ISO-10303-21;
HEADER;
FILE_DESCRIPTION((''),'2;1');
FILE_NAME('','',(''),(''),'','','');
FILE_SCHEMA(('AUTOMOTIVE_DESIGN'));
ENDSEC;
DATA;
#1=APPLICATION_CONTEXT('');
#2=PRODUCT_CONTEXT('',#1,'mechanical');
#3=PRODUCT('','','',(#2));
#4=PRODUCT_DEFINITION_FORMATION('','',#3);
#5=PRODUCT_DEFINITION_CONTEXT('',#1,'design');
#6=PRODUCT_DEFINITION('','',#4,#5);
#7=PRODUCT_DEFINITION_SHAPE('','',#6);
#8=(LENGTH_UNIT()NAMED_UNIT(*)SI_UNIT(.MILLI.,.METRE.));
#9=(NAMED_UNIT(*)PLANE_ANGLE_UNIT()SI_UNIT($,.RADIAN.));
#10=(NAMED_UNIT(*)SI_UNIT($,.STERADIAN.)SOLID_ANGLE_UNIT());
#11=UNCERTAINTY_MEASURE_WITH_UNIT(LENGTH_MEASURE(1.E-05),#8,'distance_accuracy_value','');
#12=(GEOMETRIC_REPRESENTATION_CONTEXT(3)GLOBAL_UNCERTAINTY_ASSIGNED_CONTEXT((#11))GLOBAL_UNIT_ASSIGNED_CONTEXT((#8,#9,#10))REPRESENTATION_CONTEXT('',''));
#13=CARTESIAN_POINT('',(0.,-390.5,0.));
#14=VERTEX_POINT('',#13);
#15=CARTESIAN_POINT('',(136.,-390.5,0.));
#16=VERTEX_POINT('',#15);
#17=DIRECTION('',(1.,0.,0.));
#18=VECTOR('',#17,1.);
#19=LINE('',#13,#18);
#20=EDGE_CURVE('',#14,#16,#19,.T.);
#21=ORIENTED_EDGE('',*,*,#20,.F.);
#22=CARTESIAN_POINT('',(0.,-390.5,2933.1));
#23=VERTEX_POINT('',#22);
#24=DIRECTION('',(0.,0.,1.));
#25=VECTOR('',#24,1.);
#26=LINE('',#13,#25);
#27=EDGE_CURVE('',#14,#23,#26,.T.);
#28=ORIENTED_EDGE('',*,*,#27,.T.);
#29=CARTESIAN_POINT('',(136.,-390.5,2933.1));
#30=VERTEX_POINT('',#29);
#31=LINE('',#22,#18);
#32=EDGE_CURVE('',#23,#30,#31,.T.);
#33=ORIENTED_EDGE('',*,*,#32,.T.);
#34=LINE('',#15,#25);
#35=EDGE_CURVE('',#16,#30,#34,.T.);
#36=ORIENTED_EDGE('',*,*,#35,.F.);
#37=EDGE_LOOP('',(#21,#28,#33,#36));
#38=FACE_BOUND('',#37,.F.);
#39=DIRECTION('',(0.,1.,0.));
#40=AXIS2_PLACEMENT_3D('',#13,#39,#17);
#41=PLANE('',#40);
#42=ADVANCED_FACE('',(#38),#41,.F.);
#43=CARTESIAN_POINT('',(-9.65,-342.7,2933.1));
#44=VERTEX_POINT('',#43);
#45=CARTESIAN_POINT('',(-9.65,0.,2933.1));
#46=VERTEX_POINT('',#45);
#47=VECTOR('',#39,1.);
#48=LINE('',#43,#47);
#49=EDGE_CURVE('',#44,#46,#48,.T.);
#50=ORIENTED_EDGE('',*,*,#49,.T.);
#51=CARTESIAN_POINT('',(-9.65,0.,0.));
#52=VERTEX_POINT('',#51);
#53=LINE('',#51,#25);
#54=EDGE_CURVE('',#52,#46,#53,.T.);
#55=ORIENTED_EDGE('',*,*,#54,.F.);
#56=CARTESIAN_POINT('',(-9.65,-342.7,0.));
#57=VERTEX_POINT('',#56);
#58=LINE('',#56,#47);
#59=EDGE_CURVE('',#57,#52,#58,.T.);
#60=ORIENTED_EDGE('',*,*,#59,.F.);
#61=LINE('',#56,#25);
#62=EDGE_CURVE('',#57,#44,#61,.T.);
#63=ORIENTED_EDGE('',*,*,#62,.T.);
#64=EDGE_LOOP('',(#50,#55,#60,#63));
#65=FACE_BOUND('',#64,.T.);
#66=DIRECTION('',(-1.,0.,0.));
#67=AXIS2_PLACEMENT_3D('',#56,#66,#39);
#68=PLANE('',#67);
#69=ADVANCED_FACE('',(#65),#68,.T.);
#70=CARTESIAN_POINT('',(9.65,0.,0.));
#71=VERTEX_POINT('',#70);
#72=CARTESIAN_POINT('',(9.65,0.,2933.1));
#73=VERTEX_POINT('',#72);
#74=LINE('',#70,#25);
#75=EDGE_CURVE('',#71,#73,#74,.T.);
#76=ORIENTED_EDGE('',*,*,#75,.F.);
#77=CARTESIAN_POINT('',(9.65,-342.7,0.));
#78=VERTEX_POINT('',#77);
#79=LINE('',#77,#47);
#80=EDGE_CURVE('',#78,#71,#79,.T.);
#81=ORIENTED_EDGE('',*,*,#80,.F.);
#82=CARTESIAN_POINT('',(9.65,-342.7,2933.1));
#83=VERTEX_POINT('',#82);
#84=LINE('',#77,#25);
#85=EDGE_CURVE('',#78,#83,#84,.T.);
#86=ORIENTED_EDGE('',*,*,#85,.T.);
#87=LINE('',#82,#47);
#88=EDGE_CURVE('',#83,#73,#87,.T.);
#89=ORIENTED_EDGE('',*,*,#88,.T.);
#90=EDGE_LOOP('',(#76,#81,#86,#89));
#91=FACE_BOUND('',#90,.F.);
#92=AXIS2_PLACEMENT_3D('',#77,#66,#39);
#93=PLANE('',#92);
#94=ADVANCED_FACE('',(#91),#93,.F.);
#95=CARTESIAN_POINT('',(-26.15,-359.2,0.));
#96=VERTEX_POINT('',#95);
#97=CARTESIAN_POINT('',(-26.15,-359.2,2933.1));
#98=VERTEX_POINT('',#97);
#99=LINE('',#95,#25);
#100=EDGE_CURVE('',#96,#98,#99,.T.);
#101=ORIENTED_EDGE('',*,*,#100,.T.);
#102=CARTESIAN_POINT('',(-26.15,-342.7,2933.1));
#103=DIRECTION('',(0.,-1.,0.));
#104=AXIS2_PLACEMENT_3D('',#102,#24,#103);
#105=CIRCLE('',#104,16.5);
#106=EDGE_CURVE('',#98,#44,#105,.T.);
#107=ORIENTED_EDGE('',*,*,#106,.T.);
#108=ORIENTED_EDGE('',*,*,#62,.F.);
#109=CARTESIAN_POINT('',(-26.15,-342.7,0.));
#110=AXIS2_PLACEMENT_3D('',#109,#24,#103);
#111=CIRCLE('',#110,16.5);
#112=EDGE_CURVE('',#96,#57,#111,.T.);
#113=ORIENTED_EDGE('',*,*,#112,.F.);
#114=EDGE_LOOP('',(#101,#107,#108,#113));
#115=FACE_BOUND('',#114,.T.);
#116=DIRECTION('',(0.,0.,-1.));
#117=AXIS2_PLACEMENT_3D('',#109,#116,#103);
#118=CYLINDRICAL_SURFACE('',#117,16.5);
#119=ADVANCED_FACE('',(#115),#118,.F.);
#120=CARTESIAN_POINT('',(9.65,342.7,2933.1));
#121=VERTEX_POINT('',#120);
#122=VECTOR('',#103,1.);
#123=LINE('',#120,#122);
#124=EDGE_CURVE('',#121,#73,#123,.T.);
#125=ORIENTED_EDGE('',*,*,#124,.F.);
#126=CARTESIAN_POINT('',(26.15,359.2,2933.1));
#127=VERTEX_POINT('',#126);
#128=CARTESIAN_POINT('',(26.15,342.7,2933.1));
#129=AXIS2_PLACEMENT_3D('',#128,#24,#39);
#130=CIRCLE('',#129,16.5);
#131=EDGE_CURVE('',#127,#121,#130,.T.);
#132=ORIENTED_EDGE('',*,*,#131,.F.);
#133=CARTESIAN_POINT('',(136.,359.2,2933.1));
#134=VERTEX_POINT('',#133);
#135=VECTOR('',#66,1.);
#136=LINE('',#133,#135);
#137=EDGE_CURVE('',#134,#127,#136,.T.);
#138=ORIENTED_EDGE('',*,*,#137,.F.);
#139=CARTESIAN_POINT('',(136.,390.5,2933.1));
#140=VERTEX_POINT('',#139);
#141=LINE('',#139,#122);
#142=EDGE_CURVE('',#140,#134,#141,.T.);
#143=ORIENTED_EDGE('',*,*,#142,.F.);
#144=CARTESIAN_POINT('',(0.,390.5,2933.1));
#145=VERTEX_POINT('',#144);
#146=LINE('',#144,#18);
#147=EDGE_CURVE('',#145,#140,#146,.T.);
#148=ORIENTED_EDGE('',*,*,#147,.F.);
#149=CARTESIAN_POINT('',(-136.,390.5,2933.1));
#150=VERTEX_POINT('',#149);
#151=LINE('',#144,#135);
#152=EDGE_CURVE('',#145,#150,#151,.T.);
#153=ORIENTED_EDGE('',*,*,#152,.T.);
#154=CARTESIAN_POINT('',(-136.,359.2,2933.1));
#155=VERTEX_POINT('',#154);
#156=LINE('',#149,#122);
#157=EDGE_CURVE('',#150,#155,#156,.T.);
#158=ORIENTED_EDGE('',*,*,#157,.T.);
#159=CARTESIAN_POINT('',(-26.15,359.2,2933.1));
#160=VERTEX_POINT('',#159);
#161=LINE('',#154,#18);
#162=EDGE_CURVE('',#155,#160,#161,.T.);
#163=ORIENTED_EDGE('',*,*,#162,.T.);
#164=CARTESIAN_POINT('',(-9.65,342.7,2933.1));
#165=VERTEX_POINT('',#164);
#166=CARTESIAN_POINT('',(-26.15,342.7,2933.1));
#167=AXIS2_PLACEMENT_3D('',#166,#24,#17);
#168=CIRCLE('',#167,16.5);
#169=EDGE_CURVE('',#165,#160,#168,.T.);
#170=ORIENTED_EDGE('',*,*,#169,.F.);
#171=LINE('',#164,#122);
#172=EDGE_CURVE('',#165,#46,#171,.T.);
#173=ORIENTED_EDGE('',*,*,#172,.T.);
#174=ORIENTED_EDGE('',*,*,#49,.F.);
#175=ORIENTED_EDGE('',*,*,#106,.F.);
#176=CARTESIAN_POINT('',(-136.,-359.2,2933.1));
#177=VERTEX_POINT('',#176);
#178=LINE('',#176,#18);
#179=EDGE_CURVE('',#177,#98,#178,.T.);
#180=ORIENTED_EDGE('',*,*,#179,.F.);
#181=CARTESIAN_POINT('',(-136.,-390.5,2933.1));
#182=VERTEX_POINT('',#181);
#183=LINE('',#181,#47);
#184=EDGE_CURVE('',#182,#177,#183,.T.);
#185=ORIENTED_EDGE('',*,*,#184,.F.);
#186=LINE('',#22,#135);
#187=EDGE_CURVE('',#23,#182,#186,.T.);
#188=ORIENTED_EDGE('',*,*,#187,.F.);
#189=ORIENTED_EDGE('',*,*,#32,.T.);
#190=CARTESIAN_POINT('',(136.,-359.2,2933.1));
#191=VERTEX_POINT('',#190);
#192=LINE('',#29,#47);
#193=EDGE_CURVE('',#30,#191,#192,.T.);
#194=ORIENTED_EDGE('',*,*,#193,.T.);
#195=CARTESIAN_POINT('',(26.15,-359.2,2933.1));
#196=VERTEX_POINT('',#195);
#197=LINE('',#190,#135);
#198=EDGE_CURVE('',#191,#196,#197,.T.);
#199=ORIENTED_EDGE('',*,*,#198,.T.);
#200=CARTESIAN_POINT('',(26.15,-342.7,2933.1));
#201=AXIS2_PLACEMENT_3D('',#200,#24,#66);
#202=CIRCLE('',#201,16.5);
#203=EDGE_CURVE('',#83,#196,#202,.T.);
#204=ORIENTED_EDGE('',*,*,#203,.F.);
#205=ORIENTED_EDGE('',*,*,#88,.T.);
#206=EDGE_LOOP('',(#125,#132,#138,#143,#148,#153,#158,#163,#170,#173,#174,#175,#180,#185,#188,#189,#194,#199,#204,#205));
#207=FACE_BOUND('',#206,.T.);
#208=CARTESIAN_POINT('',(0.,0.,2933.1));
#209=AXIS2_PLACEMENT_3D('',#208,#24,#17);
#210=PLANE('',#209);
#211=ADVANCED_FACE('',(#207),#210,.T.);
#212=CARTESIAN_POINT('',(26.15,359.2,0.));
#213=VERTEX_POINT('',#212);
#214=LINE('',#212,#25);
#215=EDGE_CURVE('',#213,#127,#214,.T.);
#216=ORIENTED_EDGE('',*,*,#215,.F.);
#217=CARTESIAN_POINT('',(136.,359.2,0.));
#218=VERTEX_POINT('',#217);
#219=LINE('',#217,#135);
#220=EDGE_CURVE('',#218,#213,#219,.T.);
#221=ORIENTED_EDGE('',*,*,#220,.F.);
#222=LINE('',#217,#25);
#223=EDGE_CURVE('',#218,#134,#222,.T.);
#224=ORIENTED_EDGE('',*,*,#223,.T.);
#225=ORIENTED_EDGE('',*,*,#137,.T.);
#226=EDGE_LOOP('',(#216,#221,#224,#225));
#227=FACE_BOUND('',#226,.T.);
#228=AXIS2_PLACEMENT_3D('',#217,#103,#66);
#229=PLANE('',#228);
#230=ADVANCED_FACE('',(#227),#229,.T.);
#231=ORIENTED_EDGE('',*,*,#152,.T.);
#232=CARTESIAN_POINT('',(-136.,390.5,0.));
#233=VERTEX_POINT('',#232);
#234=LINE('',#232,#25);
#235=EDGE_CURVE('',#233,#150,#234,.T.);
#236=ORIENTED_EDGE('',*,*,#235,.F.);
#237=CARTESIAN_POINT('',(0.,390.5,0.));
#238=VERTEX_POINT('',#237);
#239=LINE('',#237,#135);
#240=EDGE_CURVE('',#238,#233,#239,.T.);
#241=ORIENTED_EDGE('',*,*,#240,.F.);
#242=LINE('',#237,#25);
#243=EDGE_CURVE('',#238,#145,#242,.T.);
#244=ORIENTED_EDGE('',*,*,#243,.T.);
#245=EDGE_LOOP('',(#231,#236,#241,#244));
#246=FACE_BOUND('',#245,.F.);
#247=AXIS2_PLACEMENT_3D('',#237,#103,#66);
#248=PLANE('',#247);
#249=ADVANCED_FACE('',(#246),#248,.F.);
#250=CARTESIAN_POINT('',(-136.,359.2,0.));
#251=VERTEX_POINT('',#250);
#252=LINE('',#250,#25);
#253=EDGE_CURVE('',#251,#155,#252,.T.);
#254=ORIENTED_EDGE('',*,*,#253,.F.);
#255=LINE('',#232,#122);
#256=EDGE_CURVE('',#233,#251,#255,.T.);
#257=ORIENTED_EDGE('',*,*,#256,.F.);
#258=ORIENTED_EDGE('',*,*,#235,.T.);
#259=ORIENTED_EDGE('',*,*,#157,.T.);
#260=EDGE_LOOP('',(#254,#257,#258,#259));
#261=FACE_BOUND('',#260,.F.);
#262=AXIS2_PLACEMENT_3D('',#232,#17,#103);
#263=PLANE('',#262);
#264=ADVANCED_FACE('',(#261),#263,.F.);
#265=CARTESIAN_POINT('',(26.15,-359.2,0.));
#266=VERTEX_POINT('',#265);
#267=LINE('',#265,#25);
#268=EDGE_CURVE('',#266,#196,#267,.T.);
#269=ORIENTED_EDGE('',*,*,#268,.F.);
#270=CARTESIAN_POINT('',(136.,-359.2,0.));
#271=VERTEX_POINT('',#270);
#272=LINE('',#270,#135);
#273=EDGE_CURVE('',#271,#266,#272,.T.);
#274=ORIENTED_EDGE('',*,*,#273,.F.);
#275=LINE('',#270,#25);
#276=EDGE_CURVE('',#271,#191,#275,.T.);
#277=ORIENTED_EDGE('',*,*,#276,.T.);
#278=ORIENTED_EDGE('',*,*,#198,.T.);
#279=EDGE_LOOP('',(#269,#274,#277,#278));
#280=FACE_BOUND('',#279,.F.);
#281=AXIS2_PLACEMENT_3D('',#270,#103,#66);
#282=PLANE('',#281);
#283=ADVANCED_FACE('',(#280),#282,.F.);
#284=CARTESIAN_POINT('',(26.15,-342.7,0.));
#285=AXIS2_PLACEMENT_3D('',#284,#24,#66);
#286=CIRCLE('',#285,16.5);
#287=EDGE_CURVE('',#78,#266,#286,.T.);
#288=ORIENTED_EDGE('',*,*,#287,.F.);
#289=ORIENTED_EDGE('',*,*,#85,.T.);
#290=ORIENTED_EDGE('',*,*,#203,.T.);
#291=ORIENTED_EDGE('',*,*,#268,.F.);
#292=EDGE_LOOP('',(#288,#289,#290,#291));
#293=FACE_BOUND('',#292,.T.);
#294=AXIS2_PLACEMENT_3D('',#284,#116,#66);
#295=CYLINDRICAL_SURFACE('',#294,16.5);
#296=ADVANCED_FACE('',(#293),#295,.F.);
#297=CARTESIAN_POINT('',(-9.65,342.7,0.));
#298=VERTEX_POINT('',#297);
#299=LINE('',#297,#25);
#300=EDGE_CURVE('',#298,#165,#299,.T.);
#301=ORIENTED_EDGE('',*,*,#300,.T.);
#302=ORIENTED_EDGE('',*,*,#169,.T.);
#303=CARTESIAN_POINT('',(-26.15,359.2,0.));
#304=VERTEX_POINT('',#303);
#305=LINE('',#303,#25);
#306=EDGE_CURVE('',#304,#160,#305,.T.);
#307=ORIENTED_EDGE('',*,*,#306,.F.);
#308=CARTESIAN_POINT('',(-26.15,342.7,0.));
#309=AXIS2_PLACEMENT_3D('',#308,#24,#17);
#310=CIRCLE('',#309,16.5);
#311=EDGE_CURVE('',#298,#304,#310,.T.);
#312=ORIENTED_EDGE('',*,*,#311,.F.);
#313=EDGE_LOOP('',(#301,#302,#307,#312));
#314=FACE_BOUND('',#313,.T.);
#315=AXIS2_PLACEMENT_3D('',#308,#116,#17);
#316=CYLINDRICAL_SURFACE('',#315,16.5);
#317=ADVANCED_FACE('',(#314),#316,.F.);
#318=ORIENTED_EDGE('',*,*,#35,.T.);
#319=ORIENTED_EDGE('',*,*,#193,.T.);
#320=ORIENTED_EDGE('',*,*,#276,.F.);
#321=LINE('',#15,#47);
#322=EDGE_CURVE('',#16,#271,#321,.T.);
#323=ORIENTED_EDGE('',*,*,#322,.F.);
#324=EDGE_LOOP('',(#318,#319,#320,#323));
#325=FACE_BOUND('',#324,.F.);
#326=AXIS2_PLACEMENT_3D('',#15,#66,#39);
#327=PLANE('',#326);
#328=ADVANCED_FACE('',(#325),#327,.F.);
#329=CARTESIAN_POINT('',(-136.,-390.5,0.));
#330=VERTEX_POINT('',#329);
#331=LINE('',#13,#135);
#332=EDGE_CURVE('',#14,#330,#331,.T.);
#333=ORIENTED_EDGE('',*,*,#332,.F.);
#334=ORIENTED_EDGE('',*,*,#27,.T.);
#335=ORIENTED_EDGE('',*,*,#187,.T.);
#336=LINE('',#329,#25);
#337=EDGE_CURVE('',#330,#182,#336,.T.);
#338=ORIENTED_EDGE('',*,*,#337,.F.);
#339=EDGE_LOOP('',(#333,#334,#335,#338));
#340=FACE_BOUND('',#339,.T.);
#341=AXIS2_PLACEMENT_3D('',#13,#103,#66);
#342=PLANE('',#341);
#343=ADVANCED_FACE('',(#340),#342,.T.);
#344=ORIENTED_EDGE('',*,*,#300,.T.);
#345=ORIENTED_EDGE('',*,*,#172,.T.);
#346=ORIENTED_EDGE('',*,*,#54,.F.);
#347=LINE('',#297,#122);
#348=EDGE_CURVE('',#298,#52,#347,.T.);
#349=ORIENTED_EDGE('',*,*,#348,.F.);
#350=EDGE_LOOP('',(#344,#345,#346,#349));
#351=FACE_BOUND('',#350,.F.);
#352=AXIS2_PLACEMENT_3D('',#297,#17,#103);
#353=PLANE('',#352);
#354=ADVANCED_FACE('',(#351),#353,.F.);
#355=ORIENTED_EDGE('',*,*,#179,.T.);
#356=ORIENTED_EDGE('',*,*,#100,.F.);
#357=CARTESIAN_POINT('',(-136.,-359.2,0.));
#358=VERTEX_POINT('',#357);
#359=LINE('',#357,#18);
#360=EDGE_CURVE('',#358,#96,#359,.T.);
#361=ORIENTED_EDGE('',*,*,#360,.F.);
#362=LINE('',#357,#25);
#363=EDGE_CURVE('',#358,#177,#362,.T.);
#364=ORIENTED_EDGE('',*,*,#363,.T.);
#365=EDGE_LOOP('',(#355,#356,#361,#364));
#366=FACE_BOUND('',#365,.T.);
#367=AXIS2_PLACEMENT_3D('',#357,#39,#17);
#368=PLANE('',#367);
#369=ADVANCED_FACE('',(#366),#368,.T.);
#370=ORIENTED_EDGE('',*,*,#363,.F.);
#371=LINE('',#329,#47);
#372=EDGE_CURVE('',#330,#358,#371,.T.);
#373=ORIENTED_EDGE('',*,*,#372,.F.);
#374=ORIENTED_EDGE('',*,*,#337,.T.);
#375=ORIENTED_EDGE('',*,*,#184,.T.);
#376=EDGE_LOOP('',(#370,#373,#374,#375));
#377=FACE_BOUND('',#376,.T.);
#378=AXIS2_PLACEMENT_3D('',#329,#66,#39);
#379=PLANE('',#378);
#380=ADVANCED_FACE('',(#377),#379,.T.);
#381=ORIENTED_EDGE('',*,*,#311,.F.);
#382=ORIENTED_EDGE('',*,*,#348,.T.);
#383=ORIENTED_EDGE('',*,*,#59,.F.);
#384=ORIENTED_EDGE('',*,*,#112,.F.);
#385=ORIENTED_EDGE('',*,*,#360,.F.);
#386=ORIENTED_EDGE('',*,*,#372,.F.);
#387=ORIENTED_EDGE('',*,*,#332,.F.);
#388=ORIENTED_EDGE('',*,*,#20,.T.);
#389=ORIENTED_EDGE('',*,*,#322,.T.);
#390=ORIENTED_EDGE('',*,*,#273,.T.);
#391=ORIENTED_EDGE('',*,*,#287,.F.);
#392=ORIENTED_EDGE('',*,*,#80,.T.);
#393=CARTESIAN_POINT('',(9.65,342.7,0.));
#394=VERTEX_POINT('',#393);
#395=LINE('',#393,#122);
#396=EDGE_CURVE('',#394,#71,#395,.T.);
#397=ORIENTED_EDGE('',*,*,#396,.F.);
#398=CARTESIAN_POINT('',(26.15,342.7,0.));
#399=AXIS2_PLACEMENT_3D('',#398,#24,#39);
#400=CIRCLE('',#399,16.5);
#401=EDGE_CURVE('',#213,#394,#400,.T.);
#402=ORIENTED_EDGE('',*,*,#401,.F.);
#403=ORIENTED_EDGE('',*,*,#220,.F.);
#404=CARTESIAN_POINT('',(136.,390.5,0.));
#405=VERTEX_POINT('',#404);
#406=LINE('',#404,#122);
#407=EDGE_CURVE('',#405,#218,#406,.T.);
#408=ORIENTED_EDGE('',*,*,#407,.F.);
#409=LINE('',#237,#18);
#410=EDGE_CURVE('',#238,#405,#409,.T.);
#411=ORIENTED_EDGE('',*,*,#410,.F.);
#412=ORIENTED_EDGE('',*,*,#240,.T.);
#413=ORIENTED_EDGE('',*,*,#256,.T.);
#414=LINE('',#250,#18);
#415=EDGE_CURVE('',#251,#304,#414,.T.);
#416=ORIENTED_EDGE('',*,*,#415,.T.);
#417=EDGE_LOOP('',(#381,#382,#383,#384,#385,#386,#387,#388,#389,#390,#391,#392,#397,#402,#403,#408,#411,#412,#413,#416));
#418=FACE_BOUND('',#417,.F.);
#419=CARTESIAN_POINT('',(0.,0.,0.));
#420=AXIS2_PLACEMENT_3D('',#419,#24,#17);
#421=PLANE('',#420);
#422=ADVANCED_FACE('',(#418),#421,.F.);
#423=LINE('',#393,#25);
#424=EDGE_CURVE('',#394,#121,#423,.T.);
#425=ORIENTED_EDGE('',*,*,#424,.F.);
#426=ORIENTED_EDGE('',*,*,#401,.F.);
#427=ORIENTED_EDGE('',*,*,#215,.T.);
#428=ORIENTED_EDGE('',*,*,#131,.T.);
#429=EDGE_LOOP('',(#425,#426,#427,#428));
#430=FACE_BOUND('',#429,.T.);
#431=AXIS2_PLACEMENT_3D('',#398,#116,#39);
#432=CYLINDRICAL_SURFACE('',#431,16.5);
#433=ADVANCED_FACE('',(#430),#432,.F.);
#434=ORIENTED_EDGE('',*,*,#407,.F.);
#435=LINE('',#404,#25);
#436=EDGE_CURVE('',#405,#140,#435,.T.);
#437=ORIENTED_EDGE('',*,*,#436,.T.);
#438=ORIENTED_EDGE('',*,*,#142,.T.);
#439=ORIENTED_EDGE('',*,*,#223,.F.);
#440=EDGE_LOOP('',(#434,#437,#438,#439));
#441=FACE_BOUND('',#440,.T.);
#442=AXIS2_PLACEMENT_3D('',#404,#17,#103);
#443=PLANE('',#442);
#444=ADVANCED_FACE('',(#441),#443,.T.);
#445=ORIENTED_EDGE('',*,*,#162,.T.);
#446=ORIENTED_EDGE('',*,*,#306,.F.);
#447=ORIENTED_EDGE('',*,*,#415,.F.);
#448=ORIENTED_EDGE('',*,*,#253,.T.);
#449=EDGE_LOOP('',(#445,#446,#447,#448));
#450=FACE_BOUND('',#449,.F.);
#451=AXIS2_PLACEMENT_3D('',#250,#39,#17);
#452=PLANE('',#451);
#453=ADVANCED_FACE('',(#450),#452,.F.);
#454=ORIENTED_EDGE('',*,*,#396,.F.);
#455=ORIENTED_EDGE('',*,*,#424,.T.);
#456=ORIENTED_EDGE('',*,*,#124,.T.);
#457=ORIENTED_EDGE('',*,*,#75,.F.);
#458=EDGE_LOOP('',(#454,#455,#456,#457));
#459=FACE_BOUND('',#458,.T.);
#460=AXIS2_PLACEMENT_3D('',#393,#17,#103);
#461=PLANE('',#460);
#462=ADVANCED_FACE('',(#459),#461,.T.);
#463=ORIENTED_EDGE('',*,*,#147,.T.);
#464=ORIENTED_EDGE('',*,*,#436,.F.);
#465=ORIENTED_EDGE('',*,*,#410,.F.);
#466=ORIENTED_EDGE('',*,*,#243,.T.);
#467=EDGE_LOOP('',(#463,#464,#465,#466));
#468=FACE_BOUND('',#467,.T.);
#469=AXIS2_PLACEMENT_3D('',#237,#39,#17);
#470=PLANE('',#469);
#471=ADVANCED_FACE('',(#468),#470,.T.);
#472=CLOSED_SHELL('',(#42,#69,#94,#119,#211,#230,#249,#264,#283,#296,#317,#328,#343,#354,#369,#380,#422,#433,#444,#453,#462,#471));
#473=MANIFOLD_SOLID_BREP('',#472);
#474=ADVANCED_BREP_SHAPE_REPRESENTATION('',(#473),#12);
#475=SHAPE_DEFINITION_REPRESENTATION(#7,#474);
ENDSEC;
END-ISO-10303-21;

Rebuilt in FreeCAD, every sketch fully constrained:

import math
import FreeCAD as App
import Part
import Sketcher

V = App.Vector

doc = App.newDocument("Part")
params = doc.addObject("Spreadsheet::Sheet", "Params")
for row, (alias, value) in enumerate([
    ("sketch1_radius", "16.5 mm"),
    ("sketch1_height", "31.3 mm"),
    ("pad1_length", "2933.1 mm"),
], start=1):
    params.set(f"A{row}", alias)
    params.set(f"B{row}", "=" + value)
    params.setAlias(f"B{row}", alias)

body = doc.addObject("PartDesign::Body", "Body")

# Sketch on XY plane
sketch1 = body.newObject("Sketcher::SketchObject", "Sketch")
sketch1.AttachmentSupport = (doc.getObject("XY_Plane"), [""])
sketch1.MapMode = "FlatFace"
sketch1.addGeometry([
    Part.LineSegment(V(-136, -359.2, 0), V(-136, -390.5, 0)),  # 0
    Part.LineSegment(V(-136, -390.5, 0), V(136, -390.5, 0)),  # 1
    Part.LineSegment(V(136, -390.5, 0), V(136, -359.2, 0)),  # 2
    Part.LineSegment(V(136, -359.2, 0), V(26.15, -359.2, 0)),  # 3
    Part.ArcOfCircle(Part.Circle(V(26.15, -342.7, 0), V(0, 0, 1), 16.5), math.radians(180), math.radians(270)),  # 4
    Part.LineSegment(V(9.65, -342.7, 0), V(9.65, 342.7, 0)),  # 5
    Part.ArcOfCircle(Part.Circle(V(26.15, 342.7, 0), V(0, 0, 1), 16.5), math.radians(90), math.radians(180)),  # 6
    Part.LineSegment(V(26.15, 359.2, 0), V(136, 359.2, 0)),  # 7
    Part.LineSegment(V(136, 359.2, 0), V(136, 390.5, 0)),  # 8
    Part.LineSegment(V(136, 390.5, 0), V(-136, 390.5, 0)),  # 9
    Part.LineSegment(V(-136, 390.5, 0), V(-136, 359.2, 0)),  # 10
    Part.LineSegment(V(-136, 359.2, 0), V(-26.15, 359.2, 0)),  # 11
    Part.ArcOfCircle(Part.Circle(V(-26.15, 342.7, 0), V(0, 0, 1), 16.5), math.radians(0), math.radians(90)),  # 12
    Part.LineSegment(V(-9.65, 342.7, 0), V(-9.65, -342.7, 0)),  # 13
    Part.ArcOfCircle(Part.Circle(V(-26.15, -342.7, 0), V(0, 0, 1), 16.5), math.radians(-90), math.radians(0)),  # 14
    Part.LineSegment(V(-26.15, -359.2, 0), V(-136, -359.2, 0)),  # 15
], False)
sketch1.addConstraint([
    Sketcher.Constraint("Coincident", 0, 2, 1, 1),
    Sketcher.Constraint("Coincident", 1, 2, 2, 1),
    Sketcher.Constraint("Coincident", 2, 2, 3, 1),
    Sketcher.Constraint("Tangent", 3, 2, 4, 2),
    Sketcher.Constraint("Tangent", 4, 1, 5, 1),
    Sketcher.Constraint("Tangent", 5, 2, 6, 2),
    Sketcher.Constraint("Tangent", 6, 1, 7, 1),
    Sketcher.Constraint("Coincident", 7, 2, 8, 1),
    Sketcher.Constraint("Coincident", 8, 2, 9, 1),
    Sketcher.Constraint("Coincident", 9, 2, 10, 1),
    Sketcher.Constraint("Coincident", 10, 2, 11, 1),
    Sketcher.Constraint("Tangent", 11, 2, 12, 2),
    Sketcher.Constraint("Tangent", 12, 1, 13, 1),
    Sketcher.Constraint("Tangent", 13, 2, 14, 2),
    Sketcher.Constraint("Tangent", 14, 1, 15, 1),
    Sketcher.Constraint("Coincident", 15, 2, 0, 1),
    Sketcher.Constraint("Vertical", 0),
    Sketcher.Constraint("Horizontal", 1),
    Sketcher.Constraint("Vertical", 2),
    Sketcher.Constraint("Horizontal", 3),
    Sketcher.Constraint("Vertical", 5),
    Sketcher.Constraint("Horizontal", 7),
    Sketcher.Constraint("Vertical", 8),
    Sketcher.Constraint("Horizontal", 9),
    Sketcher.Constraint("Vertical", 10),
    Sketcher.Constraint("Horizontal", 11),
    Sketcher.Constraint("Vertical", 13),
    Sketcher.Constraint("Horizontal", 15),
    Sketcher.Constraint("Equal", 4, 6),
    Sketcher.Constraint("Equal", 6, 12),
    Sketcher.Constraint("Equal", 12, 14),
    Sketcher.Constraint("Symmetric", 4, 3, 12, 3, -1, 1),
    Sketcher.Constraint("Symmetric", 0, 2, 8, 2, -1, 1),
    Sketcher.Constraint("Symmetric", 7, 2, 10, 2, -2),
    Sketcher.Constraint("Symmetric", 2, 2, 15, 2, -2),
    Sketcher.Constraint("Radius", 4, 16.5),
    Sketcher.Constraint("DistanceY", 0, 2, 0, 1, 31.3),
    Sketcher.Constraint("DistanceX", 0, 2, -1, 1, 136.0),
    Sketcher.Constraint("DistanceY", 0, 2, -1, 1, 390.5),
    Sketcher.Constraint("DistanceX", -1, 1, 4, 1, 9.65),
])
sketch1.setExpression("Constraints[35]", "Params.sketch1_radius")
sketch1.setExpression("Constraints[36]", "Params.sketch1_height")
pad1 = body.newObject("PartDesign::Pad", "Pad")
pad1.Profile = sketch1
pad1.setExpression("Length", "Params.pad1_length")

doc.recompute()
